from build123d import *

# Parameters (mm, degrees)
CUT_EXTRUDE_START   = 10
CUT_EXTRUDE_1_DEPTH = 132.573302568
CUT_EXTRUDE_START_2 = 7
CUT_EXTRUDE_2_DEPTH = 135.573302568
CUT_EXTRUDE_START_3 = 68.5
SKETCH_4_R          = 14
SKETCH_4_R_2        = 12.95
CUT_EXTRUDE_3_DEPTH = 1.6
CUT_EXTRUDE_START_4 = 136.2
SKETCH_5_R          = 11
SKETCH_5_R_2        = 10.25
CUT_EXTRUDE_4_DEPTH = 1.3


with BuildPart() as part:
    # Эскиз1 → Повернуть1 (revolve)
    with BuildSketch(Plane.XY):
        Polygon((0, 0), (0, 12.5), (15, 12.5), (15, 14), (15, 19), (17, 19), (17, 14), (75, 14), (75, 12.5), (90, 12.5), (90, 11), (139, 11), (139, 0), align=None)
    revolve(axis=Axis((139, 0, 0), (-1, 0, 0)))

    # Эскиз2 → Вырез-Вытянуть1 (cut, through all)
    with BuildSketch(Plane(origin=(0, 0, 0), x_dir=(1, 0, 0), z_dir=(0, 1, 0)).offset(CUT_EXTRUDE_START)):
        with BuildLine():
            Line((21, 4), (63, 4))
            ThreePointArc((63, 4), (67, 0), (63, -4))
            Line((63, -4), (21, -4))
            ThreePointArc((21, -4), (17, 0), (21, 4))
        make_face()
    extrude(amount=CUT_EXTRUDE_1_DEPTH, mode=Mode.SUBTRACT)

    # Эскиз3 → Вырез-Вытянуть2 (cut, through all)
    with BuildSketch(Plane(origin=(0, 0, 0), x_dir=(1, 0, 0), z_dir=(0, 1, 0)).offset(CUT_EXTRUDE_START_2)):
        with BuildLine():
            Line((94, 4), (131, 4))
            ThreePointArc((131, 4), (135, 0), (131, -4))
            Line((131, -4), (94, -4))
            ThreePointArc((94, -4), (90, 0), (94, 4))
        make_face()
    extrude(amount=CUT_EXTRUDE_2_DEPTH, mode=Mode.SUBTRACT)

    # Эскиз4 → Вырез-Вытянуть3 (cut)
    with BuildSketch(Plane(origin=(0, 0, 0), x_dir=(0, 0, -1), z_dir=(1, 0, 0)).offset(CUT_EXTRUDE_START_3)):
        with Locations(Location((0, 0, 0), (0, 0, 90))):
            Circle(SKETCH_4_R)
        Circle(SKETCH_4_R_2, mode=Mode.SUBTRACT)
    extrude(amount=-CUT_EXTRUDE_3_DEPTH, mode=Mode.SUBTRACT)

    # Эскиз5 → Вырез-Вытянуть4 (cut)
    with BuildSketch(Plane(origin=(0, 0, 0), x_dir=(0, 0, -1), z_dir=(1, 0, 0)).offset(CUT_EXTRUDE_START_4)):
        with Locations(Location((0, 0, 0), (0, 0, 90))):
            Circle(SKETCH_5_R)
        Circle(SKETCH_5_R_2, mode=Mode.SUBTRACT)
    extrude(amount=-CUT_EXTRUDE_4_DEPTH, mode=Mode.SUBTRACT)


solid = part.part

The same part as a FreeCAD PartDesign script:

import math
import FreeCAD as App
import Part
import Sketcher
from FreeCAD import Vector
Q = App.Units.Quantity


def add_polygon(sketch, points):
    """Adds a closed chain of lines whose ends are joined by coincident constraints."""
    first, n = sketch.GeometryCount, len(points)
    for a, b in zip(points, points[1:] + points[:1]):
        sketch.addGeometry(Part.LineSegment(App.Vector(*a, 0), App.Vector(*b, 0)), False)
    for i in range(n):
        sketch.addConstraint(Sketcher.Constraint("Coincident", first + i, 2, first + (i + 1) % n, 1))

doc = App.newDocument("Part")
body = doc.addObject("PartDesign::Body", "Body")

sketch1 = body.newObject("Sketcher::SketchObject", "Sketch")
sketch1.AttachmentSupport = (doc.getObject("XY_Plane"), [""])
sketch1.MapMode = "FlatFace"
add_polygon(sketch1, [(0, 12.5), (0, 0), (139, 0), (139, 11), (90, 11), (90, 12.5), (75, 12.5), (75, 14), (17, 14), (17, 19), (15, 19), (15, 12.5)])
sketch1.addConstraint(Sketcher.Constraint("Vertical", 0))
sketch1.addConstraint(Sketcher.Constraint("Horizontal", 1))
sketch1.addConstraint(Sketcher.Constraint("Vertical", 2))
sketch1.addConstraint(Sketcher.Constraint("Horizontal", 3))
sketch1.addConstraint(Sketcher.Constraint("Vertical", 4))
sketch1.addConstraint(Sketcher.Constraint("Horizontal", 5))
sketch1.addConstraint(Sketcher.Constraint("Vertical", 6))
sketch1.addConstraint(Sketcher.Constraint("Horizontal", 7))
sketch1.addConstraint(Sketcher.Constraint("Vertical", 8))
sketch1.addConstraint(Sketcher.Constraint("Horizontal", 9))
sketch1.addConstraint(Sketcher.Constraint("Vertical", 10))
sketch1.addConstraint(Sketcher.Constraint("Horizontal", 11))
sketch1.addConstraint(Sketcher.Constraint("Coincident", 0, 2, -1, 1))
sketch1.addConstraint(Sketcher.Constraint("Horizontal", 5, 2, 10, 2))
sketch1.addConstraint(Sketcher.Constraint("Equal", 5, 11))
sketch1.addConstraint(Sketcher.Constraint("Equal", 4, 6))
sketch1.addConstraint(Sketcher.Constraint("DistanceX", 1, 1, 1, 2, Q("139 mm")))
sketch1.addConstraint(Sketcher.Constraint("DistanceX", 3, 2, 3, 1, Q("49 mm")))
sketch1.addConstraint(Sketcher.Constraint("DistanceX", 5, 2, 5, 1, Q("15 mm")))
sketch1.addConstraint(Sketcher.Constraint("DistanceX", 7, 2, 7, 1, Q("58 mm")))
sketch1.addConstraint(Sketcher.Constraint("DistanceY", 2, 1, 2, 2, Q("11 mm")))
sketch1.addConstraint(Sketcher.Constraint("DistanceY", 8, 1, 8, 2, Q("5 mm")))
sketch1.addConstraint(Sketcher.Constraint("DistanceY", 0, 2, 0, 1, Q("12.5 mm")))
revolution = body.newObject("PartDesign::Revolution", "Revolution")
revolution.Profile = sketch1
revolution.ReferenceAxis = (sketch1, ["H_Axis"])
revolution.Angle = 360

sketch2 = body.newObject("Sketcher::SketchObject", "Sketch001")
sketch2.AttachmentSupport = (doc.getObject("XZ_Plane"), [""])
sketch2.MapMode = "FlatFace"
sketch2.AttachmentOffset = App.Placement(Vector(0, 0, -10), App.Rotation())
sketch2.addGeometry(Part.LineSegment(Vector(63, -4, 0), Vector(21, -4, 0)), False)
sketch2.addGeometry(Part.ArcOfCircle(Part.Circle(Vector(21, 0, 0), Vector(0, 0, 1), 4), math.radians(90), math.radians(270)), False)
sketch2.addGeometry(Part.LineSegment(Vector(21, 4, 0), Vector(63, 4, 0)), False)
sketch2.addGeometry(Part.ArcOfCircle(Part.Circle(Vector(63, 0, 0), Vector(0, 0, 1), 4), math.radians(-90), math.radians(90)), False)
sketch2.addConstraint(Sketcher.Constraint("Tangent", 0, 2, 1, 2))
sketch2.addConstraint(Sketcher.Constraint("Tangent", 1, 1, 2, 1))
sketch2.addConstraint(Sketcher.Constraint("Tangent", 2, 2, 3, 2))
sketch2.addConstraint(Sketcher.Constraint("Tangent", 3, 1, 0, 1))
sketch2.addConstraint(Sketcher.Constraint("Horizontal", 0))
sketch2.addConstraint(Sketcher.Constraint("Horizontal", 2))
sketch2.addConstraint(Sketcher.Constraint("PointOnObject", 1, 3, -1))
sketch2.addConstraint(Sketcher.Constraint("Radius", 1, Q("4 mm")))
sketch2.addConstraint(Sketcher.Constraint("DistanceX", 0, 2, 0, 1, Q("42 mm")))
sketch2.addConstraint(Sketcher.Constraint("DistanceX", -1, 1, 1, 3, Q("21 mm")))
pocket1 = body.newObject("PartDesign::Pocket", "Pocket")
pocket1.Profile = sketch2
pocket1.Type = "ThroughAll"

sketch3 = body.newObject("Sketcher::SketchObject", "Sketch002")
sketch3.AttachmentSupport = (doc.getObject("XZ_Plane"), [""])
sketch3.MapMode = "FlatFace"
sketch3.AttachmentOffset = App.Placement(Vector(0, 0, -7), App.Rotation())
sketch3.addGeometry(Part.LineSegment(Vector(131, -4, 0), Vector(94, -4, 0)), False)
sketch3.addGeometry(Part.ArcOfCircle(Part.Circle(Vector(94, 0, 0), Vector(0, 0, 1), 4), math.radians(90), math.radians(270)), False)
sketch3.addGeometry(Part.LineSegment(Vector(94, 4, 0), Vector(131, 4, 0)), False)
sketch3.addGeometry(Part.ArcOfCircle(Part.Circle(Vector(131, 0, 0), Vector(0, 0, 1), 4), math.radians(-90), math.radians(90)), False)
sketch3.addConstraint(Sketcher.Constraint("Tangent", 0, 2, 1, 2))
sketch3.addConstraint(Sketcher.Constraint("Tangent", 1, 1, 2, 1))
sketch3.addConstraint(Sketcher.Constraint("Tangent", 2, 2, 3, 2))
sketch3.addConstraint(Sketcher.Constraint("Tangent", 3, 1, 0, 1))
sketch3.addConstraint(Sketcher.Constraint("Horizontal", 0))
sketch3.addConstraint(Sketcher.Constraint("Horizontal", 2))
sketch3.addConstraint(Sketcher.Constraint("PointOnObject", 1, 3, -1))
sketch3.addConstraint(Sketcher.Constraint("Radius", 1, Q("4 mm")))
sketch3.addConstraint(Sketcher.Constraint("DistanceX", 0, 2, 0, 1, Q("37 mm")))
sketch3.addConstraint(Sketcher.Constraint("DistanceX", -1, 1, 1, 3, Q("94 mm")))
pocket2 = body.newObject("PartDesign::Pocket", "Pocket001")
pocket2.Profile = sketch3
pocket2.Type = "ThroughAll"

sketch4 = body.newObject("Sketcher::SketchObject", "Sketch003")
sketch4.AttachmentSupport = (doc.getObject("YZ_Plane"), [""])
sketch4.MapMode = "FlatFace"
sketch4.AttachmentOffset = App.Placement(Vector(0, 0, 68.5), App.Rotation())
sketch4.addGeometry(Part.Circle(Vector(0, 0, 0), Vector(0, 0, 1), 14), False)
sketch4.addGeometry(Part.Circle(Vector(0, 0, 0), Vector(0, 0, 1), 12.95), False)
sketch4.addConstraint(Sketcher.Constraint("Coincident", 0, 3, -1, 1))
sketch4.addConstraint(Sketcher.Constraint("Coincident", 1, 3, -1, 1))
sketch4.addConstraint(Sketcher.Constraint("Diameter", 0, Q("28 mm")))
sketch4.addConstraint(Sketcher.Constraint("Diameter", 1, Q("25.9 mm")))
pocket3 = body.newObject("PartDesign::Pocket", "Pocket002")
pocket3.Profile = sketch4
pocket3.Length = 1.6

sketch5 = body.newObject("Sketcher::SketchObject", "Sketch004")
sketch5.AttachmentSupport = (doc.getObject("YZ_Plane"), [""])
sketch5.MapMode = "FlatFace"
sketch5.AttachmentOffset = App.Placement(Vector(0, 0, 136.2), App.Rotation())
sketch5.addGeometry(Part.Circle(Vector(0, 0, 0), Vector(0, 0, 1), 11), False)
sketch5.addGeometry(Part.Circle(Vector(0, 0, 0), Vector(0, 0, 1), 10.25), False)
sketch5.addConstraint(Sketcher.Constraint("Coincident", 0, 3, -1, 1))
sketch5.addConstraint(Sketcher.Constraint("Coincident", 1, 3, -1, 1))
sketch5.addConstraint(Sketcher.Constraint("Diameter", 0, Q("22 mm")))
sketch5.addConstraint(Sketcher.Constraint("Diameter", 1, Q("20.5 mm")))
pocket4 = body.newObject("PartDesign::Pocket", "Pocket003")
pocket4.Profile = sketch5
pocket4.Length = 1.3

doc.recompute()
